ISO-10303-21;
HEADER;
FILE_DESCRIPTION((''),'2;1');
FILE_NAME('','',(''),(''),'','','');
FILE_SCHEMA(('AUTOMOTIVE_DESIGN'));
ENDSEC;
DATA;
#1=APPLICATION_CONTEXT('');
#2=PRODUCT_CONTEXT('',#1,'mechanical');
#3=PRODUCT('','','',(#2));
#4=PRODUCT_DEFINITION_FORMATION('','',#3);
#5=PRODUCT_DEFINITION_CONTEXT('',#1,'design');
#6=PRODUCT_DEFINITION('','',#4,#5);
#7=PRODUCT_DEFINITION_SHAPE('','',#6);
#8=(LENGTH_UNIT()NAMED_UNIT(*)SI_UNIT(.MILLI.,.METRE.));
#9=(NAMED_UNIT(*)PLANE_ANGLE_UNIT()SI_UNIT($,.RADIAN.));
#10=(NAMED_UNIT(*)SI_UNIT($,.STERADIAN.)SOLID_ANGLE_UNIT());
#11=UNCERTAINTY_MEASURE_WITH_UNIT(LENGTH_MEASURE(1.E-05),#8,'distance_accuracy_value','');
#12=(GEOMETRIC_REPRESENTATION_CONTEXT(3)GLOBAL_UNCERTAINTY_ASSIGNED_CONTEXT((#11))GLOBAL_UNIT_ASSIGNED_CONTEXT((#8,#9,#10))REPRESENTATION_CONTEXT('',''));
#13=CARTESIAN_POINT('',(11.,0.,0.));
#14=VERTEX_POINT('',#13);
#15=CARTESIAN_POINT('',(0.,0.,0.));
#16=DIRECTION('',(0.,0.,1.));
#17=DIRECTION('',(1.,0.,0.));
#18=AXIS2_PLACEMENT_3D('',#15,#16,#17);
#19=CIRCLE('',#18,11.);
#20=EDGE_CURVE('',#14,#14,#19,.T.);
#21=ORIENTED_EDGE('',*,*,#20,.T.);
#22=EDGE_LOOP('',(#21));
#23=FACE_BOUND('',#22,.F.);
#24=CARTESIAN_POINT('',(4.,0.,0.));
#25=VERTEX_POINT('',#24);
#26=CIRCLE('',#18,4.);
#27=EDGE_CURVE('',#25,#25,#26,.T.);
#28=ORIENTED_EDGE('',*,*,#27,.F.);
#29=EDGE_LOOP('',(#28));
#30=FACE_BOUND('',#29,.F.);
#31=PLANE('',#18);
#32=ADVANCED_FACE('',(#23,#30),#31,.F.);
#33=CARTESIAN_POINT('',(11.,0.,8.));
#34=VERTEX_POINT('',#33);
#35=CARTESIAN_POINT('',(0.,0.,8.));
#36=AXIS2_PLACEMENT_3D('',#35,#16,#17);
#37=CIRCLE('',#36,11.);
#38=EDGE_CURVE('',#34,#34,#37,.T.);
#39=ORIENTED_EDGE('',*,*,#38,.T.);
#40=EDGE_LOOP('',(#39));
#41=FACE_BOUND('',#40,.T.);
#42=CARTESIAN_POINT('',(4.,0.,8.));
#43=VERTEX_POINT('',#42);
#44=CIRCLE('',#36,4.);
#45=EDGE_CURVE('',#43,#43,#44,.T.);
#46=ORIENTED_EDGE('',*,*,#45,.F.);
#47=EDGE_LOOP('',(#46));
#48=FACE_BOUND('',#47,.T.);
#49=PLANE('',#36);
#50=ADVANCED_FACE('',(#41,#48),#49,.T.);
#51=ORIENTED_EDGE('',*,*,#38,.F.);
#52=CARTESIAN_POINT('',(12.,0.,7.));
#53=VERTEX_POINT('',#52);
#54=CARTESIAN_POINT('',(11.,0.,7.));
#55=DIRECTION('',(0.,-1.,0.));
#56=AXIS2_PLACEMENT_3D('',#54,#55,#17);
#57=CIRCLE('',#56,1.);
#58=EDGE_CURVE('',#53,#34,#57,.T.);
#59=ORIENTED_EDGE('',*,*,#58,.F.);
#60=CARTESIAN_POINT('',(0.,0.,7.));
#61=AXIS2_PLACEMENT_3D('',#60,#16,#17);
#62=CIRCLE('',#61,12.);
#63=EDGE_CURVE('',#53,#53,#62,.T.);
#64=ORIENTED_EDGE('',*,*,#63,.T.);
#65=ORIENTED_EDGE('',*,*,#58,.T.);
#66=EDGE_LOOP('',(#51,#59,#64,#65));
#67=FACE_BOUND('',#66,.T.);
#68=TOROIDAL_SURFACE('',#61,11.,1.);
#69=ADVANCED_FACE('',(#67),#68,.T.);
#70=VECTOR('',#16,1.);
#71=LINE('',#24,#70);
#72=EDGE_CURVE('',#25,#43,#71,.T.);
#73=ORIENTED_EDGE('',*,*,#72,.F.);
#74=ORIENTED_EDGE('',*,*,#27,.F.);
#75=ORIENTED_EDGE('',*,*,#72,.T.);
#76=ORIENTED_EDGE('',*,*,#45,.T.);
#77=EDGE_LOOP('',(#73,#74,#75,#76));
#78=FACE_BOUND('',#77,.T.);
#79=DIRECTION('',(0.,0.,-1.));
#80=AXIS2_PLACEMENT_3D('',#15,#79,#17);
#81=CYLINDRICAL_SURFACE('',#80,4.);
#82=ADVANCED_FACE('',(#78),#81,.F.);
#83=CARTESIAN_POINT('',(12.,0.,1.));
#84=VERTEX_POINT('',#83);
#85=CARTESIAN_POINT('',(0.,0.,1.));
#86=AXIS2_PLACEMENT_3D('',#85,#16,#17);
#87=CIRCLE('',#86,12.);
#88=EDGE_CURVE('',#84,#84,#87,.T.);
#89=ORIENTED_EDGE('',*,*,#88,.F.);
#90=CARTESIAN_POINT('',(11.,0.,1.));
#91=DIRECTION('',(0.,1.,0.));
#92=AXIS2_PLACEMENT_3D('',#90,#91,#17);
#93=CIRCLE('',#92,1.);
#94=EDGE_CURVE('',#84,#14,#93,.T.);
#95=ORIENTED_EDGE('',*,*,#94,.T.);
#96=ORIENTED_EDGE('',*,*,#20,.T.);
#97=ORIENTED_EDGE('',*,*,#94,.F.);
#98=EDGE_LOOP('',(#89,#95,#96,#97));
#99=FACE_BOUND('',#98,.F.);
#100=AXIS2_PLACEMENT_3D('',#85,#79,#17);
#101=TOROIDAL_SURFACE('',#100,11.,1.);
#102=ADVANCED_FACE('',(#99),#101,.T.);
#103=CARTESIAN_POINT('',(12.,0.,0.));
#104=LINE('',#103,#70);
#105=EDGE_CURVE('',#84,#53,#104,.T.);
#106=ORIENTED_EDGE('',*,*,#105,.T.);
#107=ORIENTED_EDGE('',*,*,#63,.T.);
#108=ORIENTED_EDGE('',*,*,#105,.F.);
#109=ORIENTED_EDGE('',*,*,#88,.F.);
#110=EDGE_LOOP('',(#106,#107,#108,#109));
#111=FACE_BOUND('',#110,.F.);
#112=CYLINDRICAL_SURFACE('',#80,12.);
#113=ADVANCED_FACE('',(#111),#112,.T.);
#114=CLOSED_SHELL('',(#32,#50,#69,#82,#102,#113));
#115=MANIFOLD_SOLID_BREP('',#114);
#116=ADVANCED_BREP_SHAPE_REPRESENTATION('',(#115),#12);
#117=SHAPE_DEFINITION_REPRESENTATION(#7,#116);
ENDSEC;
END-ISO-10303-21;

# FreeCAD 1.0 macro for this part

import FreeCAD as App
import Part
import Sketcher
from FreeCAD import Vector
Q = App.Units.Quantity


def edges_at(feature, points):
    """Names of the edges that pass closest to the given points."""
    edges = feature.Shape.Edges
    near = lambda p: min(range(len(edges)), key=lambda i: edges[i].distToShape(Part.Vertex(*p))[0])
    return sorted({f"Edge{near(p) + 1}" for p in points})

doc = App.newDocument("Part")
body = doc.addObject("PartDesign::Body", "Body")

# Sketch on XY plane
sketch1 = doc.addObject("Sketcher::SketchObject", "Sketch")
body.addObject(sketch1)
sketch1.AttachmentSupport = (doc.XY_Plane, [""])
sketch1.MapMode = "FlatFace"
sketch1.addGeometry([
    Part.Circle(Vector(0, 0, 0), Vector(0, 0, 1), 12),
    Part.Circle(Vector(0, 0, 0), Vector(0, 0, 1), 4),
], False)
sketch1.addConstraint([
    Sketcher.Constraint("Coincident", 0, 3, -1, 1),
    Sketcher.Constraint("Coincident", 1, 3, -1, 1),
    Sketcher.Constraint("Diameter", 0, Q("24 mm")),
    Sketcher.Constraint("Diameter", 1, Q("8 mm")),
])
pad1 = doc.addObject("PartDesign::Pad", "Pad")
body.addObject(pad1)
pad1.Profile = sketch1
pad1.Length = 8
doc.recompute()

fillet = doc.addObject("PartDesign::Fillet", "Fillet")
body.addObject(fillet)
fillet.Base = (pad1, edges_at(pad1, [(-12, 0, 8), (-12, 0, 0)]))
fillet.Radius = 1

doc.recompute()
